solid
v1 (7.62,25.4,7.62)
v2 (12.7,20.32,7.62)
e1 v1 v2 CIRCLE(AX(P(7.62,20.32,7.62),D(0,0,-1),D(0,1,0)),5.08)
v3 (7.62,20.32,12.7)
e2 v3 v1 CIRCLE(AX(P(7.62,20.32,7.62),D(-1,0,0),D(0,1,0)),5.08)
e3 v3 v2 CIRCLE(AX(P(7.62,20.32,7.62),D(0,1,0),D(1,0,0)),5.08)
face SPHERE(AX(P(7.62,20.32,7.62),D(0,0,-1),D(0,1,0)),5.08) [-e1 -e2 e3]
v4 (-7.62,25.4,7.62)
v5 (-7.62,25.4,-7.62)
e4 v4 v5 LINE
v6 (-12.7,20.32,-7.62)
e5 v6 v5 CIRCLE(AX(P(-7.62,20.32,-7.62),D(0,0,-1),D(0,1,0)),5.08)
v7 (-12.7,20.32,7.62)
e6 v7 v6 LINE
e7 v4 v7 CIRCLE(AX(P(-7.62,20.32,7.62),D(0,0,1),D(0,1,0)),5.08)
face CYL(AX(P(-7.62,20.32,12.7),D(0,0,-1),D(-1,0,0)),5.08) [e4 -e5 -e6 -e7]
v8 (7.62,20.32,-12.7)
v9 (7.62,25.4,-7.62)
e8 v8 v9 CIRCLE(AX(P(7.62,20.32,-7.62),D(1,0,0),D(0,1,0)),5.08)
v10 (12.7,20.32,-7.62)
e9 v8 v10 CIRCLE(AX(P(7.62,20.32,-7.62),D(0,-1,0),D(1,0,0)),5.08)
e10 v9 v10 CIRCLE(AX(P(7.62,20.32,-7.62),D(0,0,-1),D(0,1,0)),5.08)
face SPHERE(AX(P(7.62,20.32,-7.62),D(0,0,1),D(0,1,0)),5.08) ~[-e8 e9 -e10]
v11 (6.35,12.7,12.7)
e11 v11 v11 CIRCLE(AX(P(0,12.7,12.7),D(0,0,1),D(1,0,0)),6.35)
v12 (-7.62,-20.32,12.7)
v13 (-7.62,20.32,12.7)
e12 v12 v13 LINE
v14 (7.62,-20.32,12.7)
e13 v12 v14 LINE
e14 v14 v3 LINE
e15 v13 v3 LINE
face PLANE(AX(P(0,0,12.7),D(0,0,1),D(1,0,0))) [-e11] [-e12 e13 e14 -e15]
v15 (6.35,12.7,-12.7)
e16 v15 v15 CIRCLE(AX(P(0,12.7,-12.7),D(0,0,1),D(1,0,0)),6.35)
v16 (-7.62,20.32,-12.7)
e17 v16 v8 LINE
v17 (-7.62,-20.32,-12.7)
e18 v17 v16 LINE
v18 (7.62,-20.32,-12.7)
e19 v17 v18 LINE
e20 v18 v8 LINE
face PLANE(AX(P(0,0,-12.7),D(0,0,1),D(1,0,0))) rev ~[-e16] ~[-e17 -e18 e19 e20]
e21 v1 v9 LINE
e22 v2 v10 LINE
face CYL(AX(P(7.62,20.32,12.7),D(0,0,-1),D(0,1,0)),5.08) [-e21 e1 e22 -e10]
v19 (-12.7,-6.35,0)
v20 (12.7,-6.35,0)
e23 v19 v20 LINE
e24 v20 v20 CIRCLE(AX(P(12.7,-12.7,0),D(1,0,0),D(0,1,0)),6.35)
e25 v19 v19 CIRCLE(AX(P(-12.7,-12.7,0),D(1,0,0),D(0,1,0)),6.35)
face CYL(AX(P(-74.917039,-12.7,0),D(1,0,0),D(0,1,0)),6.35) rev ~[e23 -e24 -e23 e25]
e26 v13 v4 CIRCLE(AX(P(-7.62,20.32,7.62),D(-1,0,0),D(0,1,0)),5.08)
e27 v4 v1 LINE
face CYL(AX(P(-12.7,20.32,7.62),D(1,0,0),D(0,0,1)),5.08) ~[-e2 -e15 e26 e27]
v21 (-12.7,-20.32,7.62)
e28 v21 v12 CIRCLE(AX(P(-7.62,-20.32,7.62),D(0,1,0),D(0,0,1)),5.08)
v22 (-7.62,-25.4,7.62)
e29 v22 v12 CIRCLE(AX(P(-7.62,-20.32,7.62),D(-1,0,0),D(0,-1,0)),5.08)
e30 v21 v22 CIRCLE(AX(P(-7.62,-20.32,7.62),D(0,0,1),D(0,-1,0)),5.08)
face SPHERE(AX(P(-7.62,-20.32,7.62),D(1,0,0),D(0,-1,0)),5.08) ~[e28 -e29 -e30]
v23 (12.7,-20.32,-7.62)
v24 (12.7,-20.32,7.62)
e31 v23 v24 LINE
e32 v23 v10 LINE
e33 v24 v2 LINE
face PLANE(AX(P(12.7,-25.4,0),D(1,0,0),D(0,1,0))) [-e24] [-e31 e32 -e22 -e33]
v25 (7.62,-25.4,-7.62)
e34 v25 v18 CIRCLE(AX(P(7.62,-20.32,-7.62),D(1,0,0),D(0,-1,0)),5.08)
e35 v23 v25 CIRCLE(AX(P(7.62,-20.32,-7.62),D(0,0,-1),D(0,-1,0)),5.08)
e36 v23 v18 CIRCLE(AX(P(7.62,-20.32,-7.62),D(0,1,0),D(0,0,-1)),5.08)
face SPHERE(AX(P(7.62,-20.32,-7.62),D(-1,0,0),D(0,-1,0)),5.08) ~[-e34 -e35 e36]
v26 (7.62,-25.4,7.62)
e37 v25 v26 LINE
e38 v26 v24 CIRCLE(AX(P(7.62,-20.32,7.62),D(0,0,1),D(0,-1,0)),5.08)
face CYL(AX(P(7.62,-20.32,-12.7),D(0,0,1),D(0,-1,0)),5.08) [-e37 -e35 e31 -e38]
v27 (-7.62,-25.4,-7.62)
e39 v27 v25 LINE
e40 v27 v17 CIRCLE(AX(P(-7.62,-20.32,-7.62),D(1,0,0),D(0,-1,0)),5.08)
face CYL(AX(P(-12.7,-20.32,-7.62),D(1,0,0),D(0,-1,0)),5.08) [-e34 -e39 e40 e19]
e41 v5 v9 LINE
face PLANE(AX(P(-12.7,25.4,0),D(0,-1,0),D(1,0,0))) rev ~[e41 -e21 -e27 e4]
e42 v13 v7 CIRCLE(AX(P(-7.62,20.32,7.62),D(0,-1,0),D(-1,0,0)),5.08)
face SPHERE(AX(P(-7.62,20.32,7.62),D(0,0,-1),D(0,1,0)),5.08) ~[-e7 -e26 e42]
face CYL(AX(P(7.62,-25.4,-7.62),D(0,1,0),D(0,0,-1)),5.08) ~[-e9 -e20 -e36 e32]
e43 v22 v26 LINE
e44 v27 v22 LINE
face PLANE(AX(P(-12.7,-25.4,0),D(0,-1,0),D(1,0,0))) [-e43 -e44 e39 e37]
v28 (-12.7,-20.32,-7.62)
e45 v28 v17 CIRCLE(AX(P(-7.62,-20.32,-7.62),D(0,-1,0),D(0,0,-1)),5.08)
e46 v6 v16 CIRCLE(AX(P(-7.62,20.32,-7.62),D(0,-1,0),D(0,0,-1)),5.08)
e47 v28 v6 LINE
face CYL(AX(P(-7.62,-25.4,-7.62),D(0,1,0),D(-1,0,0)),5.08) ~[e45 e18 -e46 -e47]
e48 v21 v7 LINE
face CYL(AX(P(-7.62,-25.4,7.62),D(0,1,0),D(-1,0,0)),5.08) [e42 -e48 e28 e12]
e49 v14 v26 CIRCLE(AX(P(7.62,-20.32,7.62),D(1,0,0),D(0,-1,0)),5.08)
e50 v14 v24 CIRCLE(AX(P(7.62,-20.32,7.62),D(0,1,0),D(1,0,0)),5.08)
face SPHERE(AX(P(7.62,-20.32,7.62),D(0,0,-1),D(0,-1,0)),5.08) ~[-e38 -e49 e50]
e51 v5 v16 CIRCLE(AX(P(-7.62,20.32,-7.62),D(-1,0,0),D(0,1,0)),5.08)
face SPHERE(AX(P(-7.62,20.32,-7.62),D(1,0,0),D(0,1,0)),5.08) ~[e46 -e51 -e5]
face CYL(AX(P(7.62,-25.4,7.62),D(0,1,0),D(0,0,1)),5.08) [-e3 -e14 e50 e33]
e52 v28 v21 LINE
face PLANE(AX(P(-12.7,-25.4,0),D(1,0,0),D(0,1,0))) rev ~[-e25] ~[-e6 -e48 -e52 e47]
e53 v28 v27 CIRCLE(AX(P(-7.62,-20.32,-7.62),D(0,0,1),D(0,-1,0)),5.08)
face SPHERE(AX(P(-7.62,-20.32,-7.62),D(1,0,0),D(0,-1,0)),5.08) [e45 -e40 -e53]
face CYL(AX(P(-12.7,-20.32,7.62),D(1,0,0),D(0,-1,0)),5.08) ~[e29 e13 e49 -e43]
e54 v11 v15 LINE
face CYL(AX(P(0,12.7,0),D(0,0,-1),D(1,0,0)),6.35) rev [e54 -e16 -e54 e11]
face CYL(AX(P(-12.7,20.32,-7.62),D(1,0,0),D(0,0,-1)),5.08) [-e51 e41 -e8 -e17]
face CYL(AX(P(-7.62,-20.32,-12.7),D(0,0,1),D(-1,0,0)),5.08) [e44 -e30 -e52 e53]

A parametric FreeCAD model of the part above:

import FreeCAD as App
import Part
import Sketcher
Q = App.Units.Quantity


def edges_at(feature, points):
    """Names of the edges that pass closest to the given points."""
    edges = feature.Shape.Edges
    near = lambda p: min(range(len(edges)), key=lambda i: edges[i].distToShape(Part.Vertex(*p))[0])
    return sorted({f"Edge{near(p) + 1}" for p in points})

doc = App.newDocument("Part")
body = doc.addObject("PartDesign::Body", "Body")

sketch1 = body.newObject("Sketcher::SketchObject", "Sketch")
sketch1.AttachmentSupport = (doc.getObject("XY_Plane"), [""])
sketch1.MapMode = "FlatFace"
sketch1.addGeometry([
    Part.LineSegment(App.Vector(-13, 25, 0), App.Vector(-13, -25, 0)),
    Part.LineSegment(App.Vector(-13, -25, 0), App.Vector(13, -25, 0)),
    Part.LineSegment(App.Vector(13, -25, 0), App.Vector(13, 25, 0)),
    Part.LineSegment(App.Vector(13, 25, 0), App.Vector(-13, 25, 0)),
    Part.Circle(App.Vector(0, 13, 0), App.Vector(0, 0, 1), 6),
], False)
sketch1.addConstraint([
    Sketcher.Constraint("Coincident", 0, 2, 1, 1),
    Sketcher.Constraint("Coincident", 1, 2, 2, 1),
    Sketcher.Constraint("Coincident", 2, 2, 3, 1),
    Sketcher.Constraint("Coincident", 3, 2, 0, 1),
    Sketcher.Constraint("Vertical", 0),
    Sketcher.Constraint("Horizontal", 1),
    Sketcher.Constraint("Vertical", 2),
    Sketcher.Constraint("Horizontal", 3),
    Sketcher.Constraint("Symmetric", 0, 2, 2, 2, -1, 1),
    Sketcher.Constraint("PointOnObject", 4, 3, -2),
    Sketcher.Constraint("Diameter", 4, Q("0.5 in")),
    Sketcher.Constraint("DistanceX", 1, 1, 1, 2, Q("1 in")),
    Sketcher.Constraint("DistanceY", 0, 2, 0, 1, Q("2 in")),
    Sketcher.Constraint("DistanceY", -1, 1, 4, 3, Q("0.5 in")),
])
pad1 = body.newObject("PartDesign::Pad", "Pad")
pad1.Profile = sketch1
pad1.Length = Q("1 in")
pad1.Midplane = True

sketch2 = body.newObject("Sketcher::SketchObject", "Sketch001")
sketch2.AttachmentSupport = (doc.getObject("YZ_Plane"), [""])
sketch2.MapMode = "FlatFace"
sketch2.AttachmentOffset = App.Placement(App.Vector(0, 0, -0.5 * 25.4), App.Rotation())
sketch2.addGeometry(Part.Circle(App.Vector(-13, 0, 0), App.Vector(0, 0, 1), 6), False)
sketch2.addConstraint([
    Sketcher.Constraint("PointOnObject", 0, 3, -1),
    Sketcher.Constraint("Diameter", 0, Q("0.5 in")),
    Sketcher.Constraint("DistanceX", 0, 3, -1, 1, Q("0.5 in")),
])
doc.recompute()
hole = body.newObject("PartDesign::Hole", "Hole")
hole.Profile = sketch2
hole.ThreadType = "None"
hole.Diameter = Q("0.5 in")
hole.DepthType = "ThroughAll"
hole.Reversed = True
doc.recompute()

fillet = body.newObject("PartDesign::Fillet", "Fillet")
fillet.Base = (hole, edges_at(hole, [
    (0, -25.4, -12.7),
    (12.7, -25.4, 0),
    (0, -25.4, 12.7),
    (-12.7, -25.4, 0),
    (12.7, 25.4, 0),
    (0, 25.4, -12.7),
    (-12.7, 25.4, 0),
    (0, 25.4, 12.7),
    (-12.7, 0, -12.7),
    (12.7, 0, -12.7),
    (12.7, 0, 12.7),
    (-12.7, 0, 12.7),
]))
fillet.Radius = Q("0.2 in")

doc.recompute()
